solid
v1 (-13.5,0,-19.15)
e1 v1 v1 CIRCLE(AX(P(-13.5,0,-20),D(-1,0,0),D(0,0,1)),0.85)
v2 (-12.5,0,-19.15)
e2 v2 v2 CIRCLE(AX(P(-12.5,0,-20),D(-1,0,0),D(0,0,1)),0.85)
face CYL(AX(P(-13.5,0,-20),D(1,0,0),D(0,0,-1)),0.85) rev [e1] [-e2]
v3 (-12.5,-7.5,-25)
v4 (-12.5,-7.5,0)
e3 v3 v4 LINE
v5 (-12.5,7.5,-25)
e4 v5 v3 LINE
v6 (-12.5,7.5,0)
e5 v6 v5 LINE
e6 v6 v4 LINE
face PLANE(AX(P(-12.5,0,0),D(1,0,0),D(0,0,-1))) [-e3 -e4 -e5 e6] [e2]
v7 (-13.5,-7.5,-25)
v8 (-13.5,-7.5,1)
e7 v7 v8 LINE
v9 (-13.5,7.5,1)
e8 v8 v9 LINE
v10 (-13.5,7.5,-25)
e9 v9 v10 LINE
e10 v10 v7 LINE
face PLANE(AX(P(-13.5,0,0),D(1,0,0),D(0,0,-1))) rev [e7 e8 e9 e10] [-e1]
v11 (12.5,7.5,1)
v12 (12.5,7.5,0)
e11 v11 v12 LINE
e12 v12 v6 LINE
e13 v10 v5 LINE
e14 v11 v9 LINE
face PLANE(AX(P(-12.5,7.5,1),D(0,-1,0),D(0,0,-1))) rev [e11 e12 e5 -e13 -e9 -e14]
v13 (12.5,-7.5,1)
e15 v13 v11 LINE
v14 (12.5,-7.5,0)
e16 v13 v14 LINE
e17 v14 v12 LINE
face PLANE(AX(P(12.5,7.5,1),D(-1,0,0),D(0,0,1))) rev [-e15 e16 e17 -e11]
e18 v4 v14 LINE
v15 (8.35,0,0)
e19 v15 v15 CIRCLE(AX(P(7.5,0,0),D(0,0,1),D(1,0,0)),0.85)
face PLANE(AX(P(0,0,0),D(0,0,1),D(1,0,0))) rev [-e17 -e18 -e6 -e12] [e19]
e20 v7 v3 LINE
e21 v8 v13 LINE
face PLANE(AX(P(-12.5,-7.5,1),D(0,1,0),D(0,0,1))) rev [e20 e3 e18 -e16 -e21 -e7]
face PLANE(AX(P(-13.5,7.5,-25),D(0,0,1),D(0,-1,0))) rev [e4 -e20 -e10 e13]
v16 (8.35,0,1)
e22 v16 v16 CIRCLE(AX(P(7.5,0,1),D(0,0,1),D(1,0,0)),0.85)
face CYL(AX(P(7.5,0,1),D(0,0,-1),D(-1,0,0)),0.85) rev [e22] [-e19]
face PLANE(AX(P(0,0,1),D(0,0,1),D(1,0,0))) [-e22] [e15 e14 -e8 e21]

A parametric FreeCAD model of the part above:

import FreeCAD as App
import Part
import Sketcher

V = App.Vector


def add_polygon(sketch, points):
    """Adds a closed chain of lines whose ends are joined by coincident constraints."""
    first, n = sketch.GeometryCount, len(points)
    for a, b in zip(points, points[1:] + points[:1]):
        sketch.addGeometry(Part.LineSegment(App.Vector(*a, 0), App.Vector(*b, 0)), False)
    for i in range(n):
        sketch.addConstraint(Sketcher.Constraint("Coincident", first + i, 2, first + (i + 1) % n, 1))

doc = App.newDocument("Part")
params = doc.addObject("Spreadsheet::Sheet", "Params")
for row, (alias, value) in enumerate([
    ("sketch1_diameter", "1.7 mm"),
    ("sketch1_width", "25 mm"),
    ("sketch1_height", "15 mm"),
    ("pad1_length", "1 mm"),
    ("sketch2_diameter", "1.7 mm"),
    ("sketch2_width", "15 mm"),
    ("sketch2_height", "26 mm"),
    ("pad2_length", "1 mm"),
], start=1):
    params.set(f"A{row}", alias)
    params.set(f"B{row}", "=" + value)
    params.setAlias(f"B{row}", alias)

body = doc.addObject("PartDesign::Body", "Body")

# Sketch on XY plane
sketch1 = body.newObject("Sketcher::SketchObject", "Sketch")
sketch1.AttachmentSupport = (doc.getObject("XY_Plane"), [""])
sketch1.MapMode = "FlatFace"
add_polygon(sketch1, [(-12.5, 7.5), (-12.5, -7.5), (12.5, -7.5), (12.5, 7.5)])  # lines 0-3
sketch1.addGeometry(Part.Circle(V(7.5, 0, 0), V(0, 0, 1), 0.8), False)  # 4
sketch1.addConstraint([
    Sketcher.Constraint("Vertical", 0),
    Sketcher.Constraint("Horizontal", 1),
    Sketcher.Constraint("Vertical", 2),
    Sketcher.Constraint("Horizontal", 3),
    Sketcher.Constraint("Symmetric", 0, 2, 2, 2, -1, 1),
    Sketcher.Constraint("PointOnObject", 4, 3, -1),
    Sketcher.Constraint("Diameter", 4, 1.7),
    Sketcher.Constraint("DistanceX", 1, 1, 1, 2, 25.0),
    Sketcher.Constraint("DistanceY", 0, 2, 0, 1, 15.0),
    Sketcher.Constraint("DistanceX", 0, 2, 4, 3, 20.0),
])
sketch1.setExpression("Constraints[10]", "Params.sketch1_diameter")
sketch1.setExpression("Constraints[11]", "Params.sketch1_width")
sketch1.setExpression("Constraints[12]", "Params.sketch1_height")
pad1 = body.newObject("PartDesign::Pad", "Pad")
pad1.Profile = sketch1
pad1.setExpression("Length", "Params.pad1_length")

# Sketch on YZ plane
sketch2 = body.newObject("Sketcher::SketchObject", "Sketch001")
sketch2.AttachmentSupport = (doc.getObject("YZ_Plane"), [""])
sketch2.MapMode = "FlatFace"
sketch2.AttachmentOffset = App.Placement(V(0, 0, -12.5), App.Rotation())
add_polygon(sketch2, [(7.5, -25), (-7.5, -25), (-7.5, 1), (7.5, 1)])  # lines 0-3
sketch2.addGeometry(Part.Circle(V(0, -20, 0), V(0, 0, 1), 0.8), False)  # 4
sketch2.addConstraint([
    Sketcher.Constraint("Horizontal", 0),
    Sketcher.Constraint("Vertical", 1),
    Sketcher.Constraint("Horizontal", 2),
    Sketcher.Constraint("Vertical", 3),
    Sketcher.Constraint("PointOnObject", 4, 3, -2),
    Sketcher.Constraint("Diameter", 4, 1.7),
    Sketcher.Constraint("DistanceX", 0, 2, 0, 1, 15.0),
    Sketcher.Constraint("DistanceY", 1, 1, 1, 2, 26.0),
    Sketcher.Constraint("DistanceY", 4, 3, -1, 1, 20.0),
    Sketcher.Constraint("DistanceY", 0, 2, -1, 1, 25.0),
    Sketcher.Constraint("DistanceX", 0, 2, -1, 1, 7.5),
])
sketch2.setExpression("Constraints[9]", "Params.sketch2_diameter")
sketch2.setExpression("Constraints[10]", "Params.sketch2_width")
sketch2.setExpression("Constraints[11]", "Params.sketch2_height")
pad2 = body.newObject("PartDesign::Pad", "Pad001")
pad2.Profile = sketch2
pad2.setExpression("Length", "Params.pad2_length")
pad2.Reversed = True

doc.recompute()
